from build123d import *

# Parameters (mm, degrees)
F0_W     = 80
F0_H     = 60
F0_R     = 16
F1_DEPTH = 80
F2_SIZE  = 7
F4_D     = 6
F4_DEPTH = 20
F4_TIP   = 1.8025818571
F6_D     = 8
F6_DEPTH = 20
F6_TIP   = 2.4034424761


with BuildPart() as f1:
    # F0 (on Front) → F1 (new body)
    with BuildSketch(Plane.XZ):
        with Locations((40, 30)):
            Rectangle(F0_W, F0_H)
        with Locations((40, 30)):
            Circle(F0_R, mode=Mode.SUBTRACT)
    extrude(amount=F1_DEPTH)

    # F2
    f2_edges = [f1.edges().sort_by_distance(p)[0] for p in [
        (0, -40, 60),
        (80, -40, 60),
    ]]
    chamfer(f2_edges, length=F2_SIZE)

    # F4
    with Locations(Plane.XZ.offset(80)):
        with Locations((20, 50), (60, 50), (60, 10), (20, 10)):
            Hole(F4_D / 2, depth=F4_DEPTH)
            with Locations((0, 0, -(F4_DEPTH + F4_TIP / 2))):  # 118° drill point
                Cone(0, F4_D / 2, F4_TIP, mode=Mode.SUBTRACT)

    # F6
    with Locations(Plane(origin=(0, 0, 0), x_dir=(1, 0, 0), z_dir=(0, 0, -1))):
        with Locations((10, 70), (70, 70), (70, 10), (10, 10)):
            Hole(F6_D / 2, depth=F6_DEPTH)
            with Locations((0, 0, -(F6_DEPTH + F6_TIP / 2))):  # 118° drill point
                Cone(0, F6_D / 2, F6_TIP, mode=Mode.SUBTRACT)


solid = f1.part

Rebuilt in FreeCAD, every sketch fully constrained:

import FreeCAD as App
import Part
import Sketcher

V = App.Vector
Q = App.Units.Quantity


def edges_at(feature, points):
    """Names of the edges that pass closest to the given points."""
    edges = feature.Shape.Edges
    near = lambda p: min(range(len(edges)), key=lambda i: edges[i].distToShape(Part.Vertex(*p))[0])
    return sorted({f"Edge{near(p) + 1}" for p in points})

doc = App.newDocument("Part")
body = doc.addObject("PartDesign::Body", "Body")

# Sketch on XZ plane
sketch1 = body.newObject("Sketcher::SketchObject", "Sketch")
sketch1.AttachmentSupport = (doc.getObject("XZ_Plane"), [""])
sketch1.MapMode = "FlatFace"
sketch1.addGeometry([
    Part.LineSegment(V(0, 60, 0), V(0, 0, 0)),  # 0
    Part.LineSegment(V(0, 0, 0), V(80, 0, 0)),  # 1
    Part.LineSegment(V(80, 0, 0), V(80, 60, 0)),  # 2
    Part.LineSegment(V(80, 60, 0), V(0, 60, 0)),  # 3
    Part.Circle(V(40, 30, 0), V(0, 0, 1), 16),  # 4
], False)
sketch1.addConstraint([
    Sketcher.Constraint("Coincident", 0, 2, 1, 1),
    Sketcher.Constraint("Coincident", 1, 2, 2, 1),
    Sketcher.Constraint("Coincident", 2, 2, 3, 1),
    Sketcher.Constraint("Coincident", 3, 2, 0, 1),
    Sketcher.Constraint("Vertical", 0),
    Sketcher.Constraint("Horizontal", 1),
    Sketcher.Constraint("Vertical", 2),
    Sketcher.Constraint("Horizontal", 3),
    Sketcher.Constraint("Coincident", 0, 2, -1, 1),
    Sketcher.Constraint("Diameter", 4, Q("32 mm")),
    Sketcher.Constraint("DistanceX", 1, 1, 1, 2, Q("80 mm")),
    Sketcher.Constraint("DistanceY", 0, 2, 0, 1, Q("60 mm")),
    Sketcher.Constraint("DistanceX", -1, 1, 4, 3, Q("40 mm")),
    Sketcher.Constraint("DistanceY", -1, 1, 4, 3, Q("30 mm")),
])
pad1 = body.newObject("PartDesign::Pad", "Pad")
pad1.Profile = sketch1
pad1.Length = 80
doc.recompute()

chamfer = body.newObject("PartDesign::Chamfer", "Chamfer")
chamfer.Base = (pad1, edges_at(pad1, [(0, -40, 60), (80, -40, 60)]))
chamfer.Size = 7

# Sketch on XZ plane
sketch2 = body.newObject("Sketcher::SketchObject", "Sketch001")
sketch2.AttachmentSupport = (doc.getObject("XZ_Plane"), [""])
sketch2.MapMode = "FlatFace"
sketch2.AttachmentOffset = App.Placement(V(0, 0, 80), App.Rotation())
sketch2.addGeometry([
    Part.Circle(V(20, 50, 0), V(0, 0, 1), 3),
    Part.Circle(V(60, 50, 0), V(0, 0, 1), 3),
    Part.Circle(V(60, 10, 0), V(0, 0, 1), 3),
    Part.Circle(V(20, 10, 0), V(0, 0, 1), 3),
], False)
sketch2.addConstraint([
    Sketcher.Constraint("Equal", 0, 1),
    Sketcher.Constraint("Equal", 1, 2),
    Sketcher.Constraint("Equal", 2, 3),
    Sketcher.Constraint("Horizontal", 0, 3, 1, 3),
    Sketcher.Constraint("Horizontal", 2, 3, 3, 3),
    Sketcher.Constraint("Vertical", 1, 3, 2, 3),
    Sketcher.Constraint("Vertical", 0, 3, 3, 3),
    Sketcher.Constraint("Diameter", 0, Q("6 mm")),
    Sketcher.Constraint("DistanceX", -1, 1, 0, 3, Q("20 mm")),
    Sketcher.Constraint("DistanceY", -1, 1, 0, 3, Q("50 mm")),
    Sketcher.Constraint("DistanceX", -1, 1, 1, 3, Q("60 mm")),
    Sketcher.Constraint("DistanceY", -1, 1, 2, 3, Q("10 mm")),
])
doc.recompute()
hole = body.newObject("PartDesign::Hole", "Hole")
hole.Profile = sketch2
hole.ThreadType = "None"
hole.Diameter = 6
hole.DepthType = "Dimension"
hole.Depth = 20
hole.DrillPoint = "Angled"
hole.DrillPointAngle = 118

# Sketch on XY plane
sketch3 = body.newObject("Sketcher::SketchObject", "Sketch002")
sketch3.AttachmentSupport = (doc.getObject("XY_Plane"), [""])
sketch3.MapMode = "FlatFace"
sketch3.addGeometry([
    Part.Circle(V(10, -70, 0), V(0, 0, 1), 4),
    Part.Circle(V(70, -70, 0), V(0, 0, 1), 4),
    Part.Circle(V(70, -10, 0), V(0, 0, 1), 4),
    Part.Circle(V(10, -10, 0), V(0, 0, 1), 4),
], False)
sketch3.addConstraint([
    Sketcher.Constraint("Equal", 0, 1),
    Sketcher.Constraint("Equal", 1, 2),
    Sketcher.Constraint("Equal", 2, 3),
    Sketcher.Constraint("Horizontal", 0, 3, 1, 3),
    Sketcher.Constraint("Horizontal", 2, 3, 3, 3),
    Sketcher.Constraint("Vertical", 1, 3, 2, 3),
    Sketcher.Constraint("Vertical", 0, 3, 3, 3),
    Sketcher.Constraint("Diameter", 0, Q("8 mm")),
    Sketcher.Constraint("DistanceX", -1, 1, 0, 3, Q("10 mm")),
    Sketcher.Constraint("DistanceY", 0, 3, -1, 1, Q("70 mm")),
    Sketcher.Constraint("DistanceX", -1, 1, 1, 3, Q("70 mm")),
    Sketcher.Constraint("DistanceY", 2, 3, -1, 1, Q("10 mm")),
])
doc.recompute()
hole2 = body.newObject("PartDesign::Hole", "Hole001")
hole2.Profile = sketch3
hole2.ThreadType = "None"
hole2.Diameter = 8
hole2.DepthType = "Dimension"
hole2.Depth = 20
hole2.DrillPoint = "Angled"
hole2.DrillPointAngle = 118
hole2.Reversed = True

doc.recompute()
